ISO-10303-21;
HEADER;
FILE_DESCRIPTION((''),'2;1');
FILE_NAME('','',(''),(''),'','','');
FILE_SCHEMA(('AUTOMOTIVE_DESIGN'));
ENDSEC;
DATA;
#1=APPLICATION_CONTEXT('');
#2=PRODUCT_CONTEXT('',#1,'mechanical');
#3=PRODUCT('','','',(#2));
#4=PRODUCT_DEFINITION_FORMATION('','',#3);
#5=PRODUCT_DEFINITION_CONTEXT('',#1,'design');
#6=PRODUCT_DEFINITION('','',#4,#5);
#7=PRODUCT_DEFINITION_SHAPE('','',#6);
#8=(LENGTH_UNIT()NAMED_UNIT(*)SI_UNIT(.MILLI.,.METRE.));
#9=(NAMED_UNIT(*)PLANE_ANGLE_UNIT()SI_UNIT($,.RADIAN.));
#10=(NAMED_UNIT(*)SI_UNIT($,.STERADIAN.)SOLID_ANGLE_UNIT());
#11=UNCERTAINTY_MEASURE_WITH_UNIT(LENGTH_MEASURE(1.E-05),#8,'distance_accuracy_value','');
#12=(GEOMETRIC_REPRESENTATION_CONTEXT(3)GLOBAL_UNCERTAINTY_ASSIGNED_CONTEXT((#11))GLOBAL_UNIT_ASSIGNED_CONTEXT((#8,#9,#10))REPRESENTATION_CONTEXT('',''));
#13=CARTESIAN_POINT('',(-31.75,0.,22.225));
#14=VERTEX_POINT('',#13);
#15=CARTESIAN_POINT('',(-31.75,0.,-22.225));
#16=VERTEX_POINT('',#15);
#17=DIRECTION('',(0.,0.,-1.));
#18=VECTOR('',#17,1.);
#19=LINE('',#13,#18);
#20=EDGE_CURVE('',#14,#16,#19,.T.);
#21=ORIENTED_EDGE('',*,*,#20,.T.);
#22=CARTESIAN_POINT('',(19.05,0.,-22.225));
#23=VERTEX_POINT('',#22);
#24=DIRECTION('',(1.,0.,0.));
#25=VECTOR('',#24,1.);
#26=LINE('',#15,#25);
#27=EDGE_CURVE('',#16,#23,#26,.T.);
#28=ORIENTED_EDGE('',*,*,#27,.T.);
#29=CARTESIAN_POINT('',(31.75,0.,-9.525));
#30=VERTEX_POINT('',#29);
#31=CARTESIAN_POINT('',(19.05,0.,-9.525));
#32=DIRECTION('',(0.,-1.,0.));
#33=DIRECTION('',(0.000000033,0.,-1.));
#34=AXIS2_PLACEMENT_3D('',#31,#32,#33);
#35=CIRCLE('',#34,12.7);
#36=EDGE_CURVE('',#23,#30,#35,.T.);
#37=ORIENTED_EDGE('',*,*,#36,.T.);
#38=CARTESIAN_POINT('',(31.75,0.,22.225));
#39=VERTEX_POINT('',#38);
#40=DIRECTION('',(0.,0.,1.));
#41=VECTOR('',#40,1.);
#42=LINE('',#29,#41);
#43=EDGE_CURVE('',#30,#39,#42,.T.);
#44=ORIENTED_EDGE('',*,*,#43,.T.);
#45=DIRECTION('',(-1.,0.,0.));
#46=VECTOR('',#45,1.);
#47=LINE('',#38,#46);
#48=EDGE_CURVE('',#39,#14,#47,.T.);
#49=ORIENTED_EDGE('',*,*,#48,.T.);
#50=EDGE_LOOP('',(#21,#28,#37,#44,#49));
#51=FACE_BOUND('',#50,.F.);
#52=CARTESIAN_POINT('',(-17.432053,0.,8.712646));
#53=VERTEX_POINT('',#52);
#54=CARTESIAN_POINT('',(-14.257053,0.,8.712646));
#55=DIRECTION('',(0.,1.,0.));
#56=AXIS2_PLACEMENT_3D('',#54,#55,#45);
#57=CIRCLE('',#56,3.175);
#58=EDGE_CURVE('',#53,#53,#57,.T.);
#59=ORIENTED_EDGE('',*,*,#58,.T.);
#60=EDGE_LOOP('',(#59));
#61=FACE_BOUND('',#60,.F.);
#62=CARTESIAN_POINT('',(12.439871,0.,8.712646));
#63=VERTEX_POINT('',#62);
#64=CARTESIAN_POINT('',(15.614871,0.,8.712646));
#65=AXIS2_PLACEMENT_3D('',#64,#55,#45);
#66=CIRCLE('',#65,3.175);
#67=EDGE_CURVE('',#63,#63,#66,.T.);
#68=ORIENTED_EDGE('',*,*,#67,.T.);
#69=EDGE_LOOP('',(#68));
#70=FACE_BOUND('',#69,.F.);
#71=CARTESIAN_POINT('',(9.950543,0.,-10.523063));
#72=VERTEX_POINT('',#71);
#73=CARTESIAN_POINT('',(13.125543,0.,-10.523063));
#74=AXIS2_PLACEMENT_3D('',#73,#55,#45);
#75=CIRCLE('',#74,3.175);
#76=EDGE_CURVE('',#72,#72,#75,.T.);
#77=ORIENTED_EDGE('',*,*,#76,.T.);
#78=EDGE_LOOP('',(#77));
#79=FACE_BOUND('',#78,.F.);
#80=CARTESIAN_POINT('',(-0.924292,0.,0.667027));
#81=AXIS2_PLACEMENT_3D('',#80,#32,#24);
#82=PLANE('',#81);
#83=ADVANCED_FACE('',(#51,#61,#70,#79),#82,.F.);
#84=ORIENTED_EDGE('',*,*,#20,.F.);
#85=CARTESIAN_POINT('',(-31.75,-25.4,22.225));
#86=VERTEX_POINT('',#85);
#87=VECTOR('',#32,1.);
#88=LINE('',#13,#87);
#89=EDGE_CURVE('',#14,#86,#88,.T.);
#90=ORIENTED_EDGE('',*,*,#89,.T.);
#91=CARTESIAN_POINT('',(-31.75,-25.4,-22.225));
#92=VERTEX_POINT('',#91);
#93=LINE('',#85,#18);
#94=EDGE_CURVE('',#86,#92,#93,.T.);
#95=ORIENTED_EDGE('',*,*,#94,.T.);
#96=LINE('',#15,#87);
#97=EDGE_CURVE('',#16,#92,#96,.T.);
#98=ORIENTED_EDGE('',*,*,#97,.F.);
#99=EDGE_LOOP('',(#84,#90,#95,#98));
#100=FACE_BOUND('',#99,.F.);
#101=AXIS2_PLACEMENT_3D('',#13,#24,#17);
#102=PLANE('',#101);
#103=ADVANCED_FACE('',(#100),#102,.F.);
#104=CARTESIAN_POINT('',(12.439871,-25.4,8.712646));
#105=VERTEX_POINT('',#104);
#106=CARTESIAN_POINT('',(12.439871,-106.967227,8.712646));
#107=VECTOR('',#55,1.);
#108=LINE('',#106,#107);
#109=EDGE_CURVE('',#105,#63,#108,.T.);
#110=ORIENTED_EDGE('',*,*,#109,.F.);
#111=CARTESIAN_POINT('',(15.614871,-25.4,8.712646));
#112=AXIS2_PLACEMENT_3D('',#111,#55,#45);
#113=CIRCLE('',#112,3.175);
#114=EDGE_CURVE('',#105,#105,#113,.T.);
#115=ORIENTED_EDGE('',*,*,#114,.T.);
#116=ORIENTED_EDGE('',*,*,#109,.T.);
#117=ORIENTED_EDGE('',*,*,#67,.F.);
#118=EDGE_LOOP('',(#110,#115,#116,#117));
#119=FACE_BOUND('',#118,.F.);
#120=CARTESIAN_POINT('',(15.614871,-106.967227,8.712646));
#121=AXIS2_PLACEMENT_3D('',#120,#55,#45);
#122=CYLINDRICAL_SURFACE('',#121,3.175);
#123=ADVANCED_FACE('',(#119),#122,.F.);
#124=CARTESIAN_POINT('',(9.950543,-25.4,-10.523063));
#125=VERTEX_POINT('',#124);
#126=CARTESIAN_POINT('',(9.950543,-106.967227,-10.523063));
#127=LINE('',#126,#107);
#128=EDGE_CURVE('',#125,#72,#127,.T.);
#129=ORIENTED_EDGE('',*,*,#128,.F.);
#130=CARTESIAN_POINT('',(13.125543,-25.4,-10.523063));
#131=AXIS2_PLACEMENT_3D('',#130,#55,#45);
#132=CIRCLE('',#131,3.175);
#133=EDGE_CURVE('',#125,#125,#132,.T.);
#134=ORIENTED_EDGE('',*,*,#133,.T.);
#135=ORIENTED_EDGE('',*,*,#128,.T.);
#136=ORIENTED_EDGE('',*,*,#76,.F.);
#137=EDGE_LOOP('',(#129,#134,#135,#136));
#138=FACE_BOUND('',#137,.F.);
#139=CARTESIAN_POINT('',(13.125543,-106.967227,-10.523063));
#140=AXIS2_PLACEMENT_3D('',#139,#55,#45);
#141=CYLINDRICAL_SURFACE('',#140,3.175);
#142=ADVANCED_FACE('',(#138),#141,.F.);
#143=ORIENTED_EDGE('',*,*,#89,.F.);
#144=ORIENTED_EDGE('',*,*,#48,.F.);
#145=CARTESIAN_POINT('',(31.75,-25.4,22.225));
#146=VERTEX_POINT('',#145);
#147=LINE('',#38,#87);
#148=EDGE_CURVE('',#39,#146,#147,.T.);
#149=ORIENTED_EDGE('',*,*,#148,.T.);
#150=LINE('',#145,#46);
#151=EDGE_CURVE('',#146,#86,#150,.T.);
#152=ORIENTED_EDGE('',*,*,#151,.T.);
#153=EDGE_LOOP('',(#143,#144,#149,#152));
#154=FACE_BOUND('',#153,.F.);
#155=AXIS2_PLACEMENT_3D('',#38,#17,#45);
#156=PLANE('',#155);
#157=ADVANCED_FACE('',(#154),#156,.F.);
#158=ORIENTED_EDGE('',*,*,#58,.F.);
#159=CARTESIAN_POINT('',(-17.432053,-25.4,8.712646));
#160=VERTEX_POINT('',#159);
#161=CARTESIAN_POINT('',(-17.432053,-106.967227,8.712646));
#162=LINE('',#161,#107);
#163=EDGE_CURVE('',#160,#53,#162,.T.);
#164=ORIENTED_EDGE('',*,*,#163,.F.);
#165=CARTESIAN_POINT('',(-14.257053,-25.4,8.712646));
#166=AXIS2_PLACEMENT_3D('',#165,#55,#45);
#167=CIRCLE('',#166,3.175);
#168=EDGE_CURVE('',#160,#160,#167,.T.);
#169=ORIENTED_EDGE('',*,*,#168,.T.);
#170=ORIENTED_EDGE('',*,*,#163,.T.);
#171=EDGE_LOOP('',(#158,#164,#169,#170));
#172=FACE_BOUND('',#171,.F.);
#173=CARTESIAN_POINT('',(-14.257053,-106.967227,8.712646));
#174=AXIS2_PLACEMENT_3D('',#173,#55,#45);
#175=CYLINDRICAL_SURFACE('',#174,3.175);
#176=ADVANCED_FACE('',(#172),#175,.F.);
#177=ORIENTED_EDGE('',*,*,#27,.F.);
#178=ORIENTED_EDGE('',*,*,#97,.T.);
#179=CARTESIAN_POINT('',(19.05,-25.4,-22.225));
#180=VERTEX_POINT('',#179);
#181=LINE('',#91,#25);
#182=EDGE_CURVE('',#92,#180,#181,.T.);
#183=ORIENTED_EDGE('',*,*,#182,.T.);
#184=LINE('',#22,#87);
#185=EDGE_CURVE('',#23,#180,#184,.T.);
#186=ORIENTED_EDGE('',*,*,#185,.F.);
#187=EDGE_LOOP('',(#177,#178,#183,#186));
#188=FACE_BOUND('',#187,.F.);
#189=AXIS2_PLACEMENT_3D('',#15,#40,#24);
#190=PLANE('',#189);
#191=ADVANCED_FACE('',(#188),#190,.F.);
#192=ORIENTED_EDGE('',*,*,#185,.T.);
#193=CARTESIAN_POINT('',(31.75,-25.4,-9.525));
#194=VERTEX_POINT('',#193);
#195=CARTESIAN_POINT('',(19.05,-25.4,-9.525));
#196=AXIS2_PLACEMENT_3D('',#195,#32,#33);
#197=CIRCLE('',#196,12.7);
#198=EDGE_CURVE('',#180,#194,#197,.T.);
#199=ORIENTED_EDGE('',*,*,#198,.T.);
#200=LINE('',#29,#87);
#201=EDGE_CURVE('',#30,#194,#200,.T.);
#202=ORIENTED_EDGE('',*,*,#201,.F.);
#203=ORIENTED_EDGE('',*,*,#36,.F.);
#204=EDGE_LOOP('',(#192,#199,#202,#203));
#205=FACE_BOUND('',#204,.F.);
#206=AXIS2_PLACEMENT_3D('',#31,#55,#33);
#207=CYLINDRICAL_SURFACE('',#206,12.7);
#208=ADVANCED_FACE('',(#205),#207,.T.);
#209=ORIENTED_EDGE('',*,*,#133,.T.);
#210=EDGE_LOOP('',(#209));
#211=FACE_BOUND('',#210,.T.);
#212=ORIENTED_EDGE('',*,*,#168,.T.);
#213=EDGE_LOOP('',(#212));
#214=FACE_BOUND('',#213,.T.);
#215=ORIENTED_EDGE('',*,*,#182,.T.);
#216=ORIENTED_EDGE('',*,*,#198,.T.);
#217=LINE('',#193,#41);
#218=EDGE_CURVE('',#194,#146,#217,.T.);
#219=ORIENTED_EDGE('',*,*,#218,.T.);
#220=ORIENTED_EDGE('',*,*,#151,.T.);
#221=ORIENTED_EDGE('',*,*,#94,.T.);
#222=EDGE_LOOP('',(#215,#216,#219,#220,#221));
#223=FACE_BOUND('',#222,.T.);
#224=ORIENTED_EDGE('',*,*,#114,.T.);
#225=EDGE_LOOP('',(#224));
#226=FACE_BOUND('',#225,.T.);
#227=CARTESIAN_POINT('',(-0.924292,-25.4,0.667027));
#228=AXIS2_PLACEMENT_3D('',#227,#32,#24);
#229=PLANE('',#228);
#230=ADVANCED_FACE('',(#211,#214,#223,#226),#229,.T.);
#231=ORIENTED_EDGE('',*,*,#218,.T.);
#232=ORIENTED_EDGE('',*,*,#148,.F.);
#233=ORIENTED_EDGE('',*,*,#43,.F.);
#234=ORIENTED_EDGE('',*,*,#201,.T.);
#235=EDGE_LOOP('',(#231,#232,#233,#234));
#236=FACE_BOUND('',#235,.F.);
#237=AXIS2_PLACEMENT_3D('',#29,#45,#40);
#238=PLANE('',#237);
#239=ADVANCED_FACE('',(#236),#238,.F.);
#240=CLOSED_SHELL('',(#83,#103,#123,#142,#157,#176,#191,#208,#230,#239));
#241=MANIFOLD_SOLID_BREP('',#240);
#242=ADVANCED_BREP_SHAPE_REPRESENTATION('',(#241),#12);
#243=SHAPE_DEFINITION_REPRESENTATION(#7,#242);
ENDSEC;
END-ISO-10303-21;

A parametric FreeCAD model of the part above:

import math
import FreeCAD as App
import Part
import Sketcher

V = App.Vector
Q = App.Units.Quantity

doc = App.newDocument("Part")
body = doc.addObject("PartDesign::Body", "Body")

sketch1 = body.newObject("Sketcher::SketchObject", "Sketch")
sketch1.AttachmentSupport = (doc.getObject("XZ_Plane"), [""])
sketch1.MapMode = "FlatFace"
sketch1.addGeometry([
    Part.LineSegment(V(-32, -22, 0), V(19, -22, 0)),
    Part.ArcOfCircle(Part.Circle(V(19, -10, 0), V(0, 0, 1), 13), math.radians(-90), math.radians(0)),
    Part.LineSegment(V(32, -10, 0), V(32, 22, 0)),
    Part.LineSegment(V(32, 22, 0), V(-32, 22, 0)),
    Part.LineSegment(V(-32, 22, 0), V(-32, -22, 0)),
], False)
sketch1.addConstraint([
    Sketcher.Constraint("Tangent", 0, 2, 1, 1),
    Sketcher.Constraint("Tangent", 1, 2, 2, 1),
    Sketcher.Constraint("Coincident", 2, 2, 3, 1),
    Sketcher.Constraint("Coincident", 3, 2, 4, 1),
    Sketcher.Constraint("Coincident", 4, 2, 0, 1),
    Sketcher.Constraint("Horizontal", 0),
    Sketcher.Constraint("Vertical", 2),
    Sketcher.Constraint("Horizontal", 3),
    Sketcher.Constraint("Vertical", 4),
    Sketcher.Constraint("Symmetric", 2, 2, 4, 2, -1, 1),
    Sketcher.Constraint("Radius", 1, Q("0.5 in")),
    Sketcher.Constraint("DistanceX", 0, 1, 0, 2, Q("2 in")),
    Sketcher.Constraint("DistanceY", 2, 1, 2, 2, Q("1.25 in")),
])
pad1 = body.newObject("PartDesign::Pad", "Pad")
pad1.Profile = sketch1
pad1.Length = Q("1 in")

sketch2 = body.newObject("Sketcher::SketchObject", "Sketch001")
sketch2.AttachmentSupport = (doc.getObject("XZ_Plane"), [""])
sketch2.MapMode = "FlatFace"
sketch2.AttachmentOffset = App.Placement(V(0, 0, 1 * 25.4), App.Rotation())
sketch2.addGeometry([
    Part.Circle(V(-14.3, 8.7, 0), V(0, 0, 1), 3.2),
    Part.Circle(V(15.6, 8.7, 0), V(0, 0, 1), 3.2),
    Part.Circle(V(13.1, -10.5, 0), V(0, 0, 1), 3.2),
], False)
sketch2.addConstraint([
    Sketcher.Constraint("Equal", 0, 1),
    Sketcher.Constraint("Equal", 1, 2),
    Sketcher.Constraint("Horizontal", 0, 3, 1, 3),
    Sketcher.Constraint("Diameter", 0, Q("0.25 in")),
    Sketcher.Constraint("DistanceX", -1, 1, 1, 3, Q("15.614871 mm")),
    Sketcher.Constraint("DistanceX", 2, 3, 1, 3, Q("2.489328 mm")),
    Sketcher.Constraint("DistanceY", 2, 3, 1, 3, Q("19.235709 mm")),
    Sketcher.Constraint("DistanceX", 0, 3, -1, 1, Q("14.257053 mm")),
    Sketcher.Constraint("DistanceY", -1, 1, 0, 3, Q("8.712646 mm")),
])
doc.recompute()
hole = body.newObject("PartDesign::Hole", "Hole")
hole.Profile = sketch2
hole.ThreadType = "None"
hole.Diameter = Q("0.25 in")
hole.DepthType = "ThroughAll"

doc.recompute()
